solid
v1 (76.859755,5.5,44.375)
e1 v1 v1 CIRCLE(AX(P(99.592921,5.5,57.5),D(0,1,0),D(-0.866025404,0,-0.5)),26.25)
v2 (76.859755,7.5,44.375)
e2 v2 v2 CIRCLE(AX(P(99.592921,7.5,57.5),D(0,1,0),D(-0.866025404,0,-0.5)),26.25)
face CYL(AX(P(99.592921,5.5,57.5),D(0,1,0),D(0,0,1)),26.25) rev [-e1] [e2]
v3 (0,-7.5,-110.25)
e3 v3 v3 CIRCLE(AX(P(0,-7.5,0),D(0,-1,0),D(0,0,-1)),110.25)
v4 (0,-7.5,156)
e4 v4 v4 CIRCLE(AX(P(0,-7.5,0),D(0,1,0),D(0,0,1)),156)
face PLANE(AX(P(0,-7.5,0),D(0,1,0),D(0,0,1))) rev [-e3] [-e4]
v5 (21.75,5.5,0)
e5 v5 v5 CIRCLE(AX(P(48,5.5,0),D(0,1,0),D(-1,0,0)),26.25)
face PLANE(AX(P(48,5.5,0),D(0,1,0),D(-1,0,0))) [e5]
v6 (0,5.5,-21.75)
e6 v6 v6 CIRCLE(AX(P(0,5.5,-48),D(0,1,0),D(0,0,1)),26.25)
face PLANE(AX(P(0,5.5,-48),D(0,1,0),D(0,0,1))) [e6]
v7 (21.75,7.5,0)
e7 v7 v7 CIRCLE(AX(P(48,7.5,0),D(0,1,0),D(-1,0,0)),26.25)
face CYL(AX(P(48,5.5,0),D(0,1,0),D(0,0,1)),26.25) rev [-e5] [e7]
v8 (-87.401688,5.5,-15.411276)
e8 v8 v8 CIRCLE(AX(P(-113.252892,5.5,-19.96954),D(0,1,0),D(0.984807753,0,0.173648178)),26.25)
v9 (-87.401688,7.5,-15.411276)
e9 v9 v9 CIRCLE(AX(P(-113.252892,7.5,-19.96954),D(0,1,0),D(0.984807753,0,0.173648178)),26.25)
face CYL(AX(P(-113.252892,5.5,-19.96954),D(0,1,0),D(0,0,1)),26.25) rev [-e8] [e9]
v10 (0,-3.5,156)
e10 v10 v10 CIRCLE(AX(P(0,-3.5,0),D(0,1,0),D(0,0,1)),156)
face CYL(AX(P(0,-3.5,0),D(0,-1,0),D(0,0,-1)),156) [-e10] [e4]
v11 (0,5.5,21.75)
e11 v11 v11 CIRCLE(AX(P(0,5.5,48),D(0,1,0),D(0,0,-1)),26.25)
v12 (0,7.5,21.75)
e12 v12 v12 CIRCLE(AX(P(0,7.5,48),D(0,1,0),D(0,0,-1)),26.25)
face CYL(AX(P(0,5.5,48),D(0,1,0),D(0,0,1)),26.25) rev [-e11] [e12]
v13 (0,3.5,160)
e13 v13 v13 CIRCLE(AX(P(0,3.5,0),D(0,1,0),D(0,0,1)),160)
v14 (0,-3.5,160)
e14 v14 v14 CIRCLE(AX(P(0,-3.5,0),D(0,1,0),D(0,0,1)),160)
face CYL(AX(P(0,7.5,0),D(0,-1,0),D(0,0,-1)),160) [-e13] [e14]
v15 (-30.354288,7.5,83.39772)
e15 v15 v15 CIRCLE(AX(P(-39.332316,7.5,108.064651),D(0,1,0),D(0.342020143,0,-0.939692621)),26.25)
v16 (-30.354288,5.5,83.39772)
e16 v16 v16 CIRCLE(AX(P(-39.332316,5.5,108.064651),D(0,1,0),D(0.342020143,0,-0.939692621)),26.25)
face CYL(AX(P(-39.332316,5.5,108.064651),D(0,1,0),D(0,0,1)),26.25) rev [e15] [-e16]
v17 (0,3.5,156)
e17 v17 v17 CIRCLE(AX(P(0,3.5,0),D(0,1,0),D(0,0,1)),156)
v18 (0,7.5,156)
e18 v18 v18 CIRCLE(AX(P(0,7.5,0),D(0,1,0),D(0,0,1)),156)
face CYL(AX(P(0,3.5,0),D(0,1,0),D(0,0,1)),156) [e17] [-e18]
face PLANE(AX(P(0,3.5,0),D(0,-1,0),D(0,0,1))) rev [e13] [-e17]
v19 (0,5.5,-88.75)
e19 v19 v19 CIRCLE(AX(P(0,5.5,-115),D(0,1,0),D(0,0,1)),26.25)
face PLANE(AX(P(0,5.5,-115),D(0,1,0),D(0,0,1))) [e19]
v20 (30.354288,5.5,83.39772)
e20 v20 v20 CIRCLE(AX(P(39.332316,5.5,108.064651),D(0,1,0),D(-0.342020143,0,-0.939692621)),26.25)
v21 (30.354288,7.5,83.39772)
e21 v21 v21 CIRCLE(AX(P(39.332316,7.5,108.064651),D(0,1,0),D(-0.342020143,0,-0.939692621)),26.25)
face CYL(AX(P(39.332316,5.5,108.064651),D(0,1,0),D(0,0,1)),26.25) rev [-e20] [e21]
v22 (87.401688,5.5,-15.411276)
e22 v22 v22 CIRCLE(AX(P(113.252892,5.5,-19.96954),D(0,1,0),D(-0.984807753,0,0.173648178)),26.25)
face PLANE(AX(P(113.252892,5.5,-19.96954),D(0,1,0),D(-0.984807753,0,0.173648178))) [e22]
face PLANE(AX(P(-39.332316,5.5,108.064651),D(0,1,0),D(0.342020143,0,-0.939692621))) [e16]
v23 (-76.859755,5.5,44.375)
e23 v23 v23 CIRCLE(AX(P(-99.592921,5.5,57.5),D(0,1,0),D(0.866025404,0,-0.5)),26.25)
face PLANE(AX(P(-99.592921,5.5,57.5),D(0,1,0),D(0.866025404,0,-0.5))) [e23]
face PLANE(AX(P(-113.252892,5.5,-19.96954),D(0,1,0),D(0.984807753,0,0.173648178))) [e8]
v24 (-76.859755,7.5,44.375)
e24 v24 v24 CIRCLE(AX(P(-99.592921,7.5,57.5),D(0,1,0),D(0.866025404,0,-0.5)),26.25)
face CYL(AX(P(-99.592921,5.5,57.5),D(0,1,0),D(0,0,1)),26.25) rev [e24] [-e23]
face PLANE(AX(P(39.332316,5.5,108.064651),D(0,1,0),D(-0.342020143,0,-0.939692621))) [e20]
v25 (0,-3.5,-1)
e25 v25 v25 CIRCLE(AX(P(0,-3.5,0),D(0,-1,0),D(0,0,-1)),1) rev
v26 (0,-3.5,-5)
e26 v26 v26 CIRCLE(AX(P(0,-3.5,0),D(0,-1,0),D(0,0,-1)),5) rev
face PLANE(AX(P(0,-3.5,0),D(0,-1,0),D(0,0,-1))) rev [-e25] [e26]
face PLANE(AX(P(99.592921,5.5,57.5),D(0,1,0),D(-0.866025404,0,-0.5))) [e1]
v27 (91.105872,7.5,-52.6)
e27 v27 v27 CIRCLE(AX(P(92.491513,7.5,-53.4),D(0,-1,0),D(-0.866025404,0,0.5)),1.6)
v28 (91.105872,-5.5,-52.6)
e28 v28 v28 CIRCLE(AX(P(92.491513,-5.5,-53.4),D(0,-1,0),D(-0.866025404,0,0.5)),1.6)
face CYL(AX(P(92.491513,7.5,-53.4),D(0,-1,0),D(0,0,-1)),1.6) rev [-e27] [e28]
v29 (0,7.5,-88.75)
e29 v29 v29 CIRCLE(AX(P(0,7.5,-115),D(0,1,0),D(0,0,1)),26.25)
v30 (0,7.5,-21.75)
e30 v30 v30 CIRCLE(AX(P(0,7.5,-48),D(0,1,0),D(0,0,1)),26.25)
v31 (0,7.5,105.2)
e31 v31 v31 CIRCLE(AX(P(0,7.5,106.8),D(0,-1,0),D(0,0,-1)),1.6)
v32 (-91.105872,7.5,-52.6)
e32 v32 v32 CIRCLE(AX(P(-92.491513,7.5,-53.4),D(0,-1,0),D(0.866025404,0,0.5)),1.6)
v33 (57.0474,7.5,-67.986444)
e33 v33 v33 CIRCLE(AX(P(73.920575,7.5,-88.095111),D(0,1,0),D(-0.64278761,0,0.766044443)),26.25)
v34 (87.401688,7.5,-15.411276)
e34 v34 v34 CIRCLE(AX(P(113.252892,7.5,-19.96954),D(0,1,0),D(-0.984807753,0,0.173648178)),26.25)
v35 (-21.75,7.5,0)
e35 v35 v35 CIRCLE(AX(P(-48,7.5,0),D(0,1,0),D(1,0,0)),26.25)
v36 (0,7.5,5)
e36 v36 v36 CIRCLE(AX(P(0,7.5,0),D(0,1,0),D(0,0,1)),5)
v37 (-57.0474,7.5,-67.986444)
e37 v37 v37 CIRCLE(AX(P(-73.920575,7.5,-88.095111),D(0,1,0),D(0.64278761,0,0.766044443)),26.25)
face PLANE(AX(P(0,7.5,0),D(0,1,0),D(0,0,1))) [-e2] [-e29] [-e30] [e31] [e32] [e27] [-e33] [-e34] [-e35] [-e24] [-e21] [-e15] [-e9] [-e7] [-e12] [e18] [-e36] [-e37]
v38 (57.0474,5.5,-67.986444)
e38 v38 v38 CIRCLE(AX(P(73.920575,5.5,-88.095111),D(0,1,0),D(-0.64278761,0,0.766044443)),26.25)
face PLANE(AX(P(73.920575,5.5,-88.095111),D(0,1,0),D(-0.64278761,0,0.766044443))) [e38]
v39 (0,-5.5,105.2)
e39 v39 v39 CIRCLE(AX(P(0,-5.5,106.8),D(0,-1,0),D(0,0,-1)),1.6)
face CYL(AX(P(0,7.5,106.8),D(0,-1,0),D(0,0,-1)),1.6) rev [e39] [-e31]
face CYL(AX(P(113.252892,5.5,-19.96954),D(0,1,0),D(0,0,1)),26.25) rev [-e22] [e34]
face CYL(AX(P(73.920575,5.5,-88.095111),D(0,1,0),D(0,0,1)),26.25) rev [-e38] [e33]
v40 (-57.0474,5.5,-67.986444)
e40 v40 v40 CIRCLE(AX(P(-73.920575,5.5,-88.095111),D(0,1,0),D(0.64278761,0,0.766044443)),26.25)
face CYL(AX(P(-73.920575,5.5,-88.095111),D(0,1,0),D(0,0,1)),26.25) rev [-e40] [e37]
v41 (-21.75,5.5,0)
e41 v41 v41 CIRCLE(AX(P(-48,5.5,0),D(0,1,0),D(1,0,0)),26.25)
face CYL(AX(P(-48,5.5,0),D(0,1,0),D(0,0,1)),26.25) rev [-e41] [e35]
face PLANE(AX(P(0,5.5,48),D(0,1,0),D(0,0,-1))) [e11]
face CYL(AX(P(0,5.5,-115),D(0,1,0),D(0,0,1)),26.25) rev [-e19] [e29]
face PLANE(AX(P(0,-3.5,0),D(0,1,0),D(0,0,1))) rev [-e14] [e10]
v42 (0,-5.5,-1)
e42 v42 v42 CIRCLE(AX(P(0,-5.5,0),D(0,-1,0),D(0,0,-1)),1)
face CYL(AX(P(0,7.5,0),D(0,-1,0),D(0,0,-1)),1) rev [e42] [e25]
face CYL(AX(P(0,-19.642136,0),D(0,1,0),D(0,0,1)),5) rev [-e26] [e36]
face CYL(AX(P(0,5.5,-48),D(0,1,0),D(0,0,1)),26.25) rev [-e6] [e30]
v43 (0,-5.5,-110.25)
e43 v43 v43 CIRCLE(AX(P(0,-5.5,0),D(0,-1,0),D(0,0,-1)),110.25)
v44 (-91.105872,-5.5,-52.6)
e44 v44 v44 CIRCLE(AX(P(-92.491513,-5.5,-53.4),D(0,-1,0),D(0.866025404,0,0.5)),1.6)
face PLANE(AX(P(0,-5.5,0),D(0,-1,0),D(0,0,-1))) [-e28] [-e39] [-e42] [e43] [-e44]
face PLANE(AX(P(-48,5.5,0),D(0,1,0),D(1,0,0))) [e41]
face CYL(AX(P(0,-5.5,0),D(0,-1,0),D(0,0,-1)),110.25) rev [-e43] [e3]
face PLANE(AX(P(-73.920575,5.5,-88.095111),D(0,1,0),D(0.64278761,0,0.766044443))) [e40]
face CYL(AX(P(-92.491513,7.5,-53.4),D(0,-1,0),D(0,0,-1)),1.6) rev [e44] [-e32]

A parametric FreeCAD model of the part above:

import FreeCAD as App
import Part
import Sketcher

doc = App.newDocument("Part")
params = doc.addObject("Spreadsheet::Sheet", "Params")
for row, (alias, value) in enumerate([
    ("sketch1_diameter", "320 mm"),
    ("pad1_length", "15 mm"),
    ("sketch2_diameter", "220.5 mm"),
    ("pocket1_length", "2 mm"),
    ("sketch3_diameter", "3.2 mm"),
    ("sketch4_diameter", "2 mm"),
    ("sketch5_diameter", "10 mm"),
    ("pocket4_length", "11 mm"),
    ("sketch6_diameter", "320 mm"),
    ("sketch6_diameter2", "312 mm"),
    ("pocket5_length", "4 mm"),
    ("sketch7_diameter", "52.5 mm"),
    ("pocket6_length", "2 mm"),
    ("sketch8_diameter", "52.5 mm"),
    ("pocket7_length", "2 mm"),
], start=1):
    params.set(f"A{row}", alias)
    params.set(f"B{row}", "=" + value)
    params.setAlias(f"B{row}", alias)

body = doc.addObject("PartDesign::Body", "Body")

sketch1 = body.newObject("Sketcher::SketchObject", "Sketch")
sketch1.AttachmentSupport = (doc.getObject("XZ_Plane"), [""])
sketch1.MapMode = "FlatFace"
sketch1.addGeometry(Part.Circle(App.Vector(0, 0, 0), App.Vector(0, 0, 1), 160), False)
sketch1.addConstraint([
    Sketcher.Constraint("Coincident", 0, 3, -1, 1),
    Sketcher.Constraint("Diameter", 0, 320.0),
])
sketch1.setExpression("Constraints[1]", "Params.sketch1_diameter")
pad1 = body.newObject("PartDesign::Pad", "Pad")
pad1.Profile = sketch1
pad1.setExpression("Length", "Params.pad1_length")
pad1.Midplane = True

sketch2 = body.newObject("Sketcher::SketchObject", "Sketch001")
sketch2.AttachmentSupport = (doc.getObject("XZ_Plane"), [""])
sketch2.MapMode = "FlatFace"
sketch2.AttachmentOffset = App.Placement(App.Vector(0, 0, 7.5), App.Rotation())
sketch2.addGeometry(Part.Circle(App.Vector(0, 0, 0), App.Vector(0, 0, 1), 110.25), False)
sketch2.addConstraint([
    Sketcher.Constraint("Coincident", 0, 3, -1, 1),
    Sketcher.Constraint("Diameter", 0, 220.5),
])
sketch2.setExpression("Constraints[1]", "Params.sketch2_diameter")
pocket1 = body.newObject("PartDesign::Pocket", "Pocket")
pocket1.Profile = sketch2
pocket1.setExpression("Length", "Params.pocket1_length")

sketch3 = body.newObject("Sketcher::SketchObject", "Sketch002")
sketch3.AttachmentSupport = (doc.getObject("XZ_Plane"), [""])
sketch3.MapMode = "FlatFace"
sketch3.AttachmentOffset = App.Placement(App.Vector(0, 0, 5.5), App.Rotation())
sketch3.addGeometry(Part.Circle(App.Vector(0, 106.8, 0), App.Vector(0, 0, 1), 1.6), False)
sketch3.addConstraint([
    Sketcher.Constraint("PointOnObject", 0, 3, -2),
    Sketcher.Constraint("Diameter", 0, 3.2),
    Sketcher.Constraint("DistanceY", -1, 1, 0, 3, 106.8),
])
sketch3.setExpression("Constraints[1]", "Params.sketch3_diameter")
pocket2 = body.newObject("PartDesign::Pocket", "Pocket001")
pocket2.Profile = sketch3
pocket2.Type = "ThroughAll"
doc.recompute()

polarpattern = body.newObject("PartDesign::PolarPattern", "PolarPattern")
polarpattern.Originals = [pocket2]
polarpattern.Axis = (doc.getObject("Y_Axis"), [""])
polarpattern.Angle = 360
polarpattern.Occurrences = 3
body.Tip = polarpattern

sketch4 = body.newObject("Sketcher::SketchObject", "Sketch003")
sketch4.AttachmentSupport = (doc.getObject("XZ_Plane"), [""])
sketch4.MapMode = "FlatFace"
sketch4.AttachmentOffset = App.Placement(App.Vector(0, 0, 5.5), App.Rotation())
sketch4.addGeometry(Part.Circle(App.Vector(0, 0, 0), App.Vector(0, 0, 1), 1), False)
sketch4.addConstraint([
    Sketcher.Constraint("Coincident", 0, 3, -1, 1),
    Sketcher.Constraint("Diameter", 0, 2.0),
])
sketch4.setExpression("Constraints[1]", "Params.sketch4_diameter")
pocket3 = body.newObject("PartDesign::Pocket", "Pocket002")
pocket3.Profile = sketch4
pocket3.Type = "ThroughAll"

sketch5 = body.newObject("Sketcher::SketchObject", "Sketch004")
sketch5.AttachmentSupport = (doc.getObject("XZ_Plane"), [""])
sketch5.MapMode = "FlatFace"
sketch5.AttachmentOffset = App.Placement(App.Vector(0, 0, -7.5), App.Rotation())
sketch5.addGeometry(Part.Circle(App.Vector(0, 0, 0), App.Vector(0, 0, 1), 5), False)
sketch5.addConstraint([
    Sketcher.Constraint("Coincident", 0, 3, -1, 1),
    Sketcher.Constraint("Diameter", 0, 10.0),
])
sketch5.setExpression("Constraints[1]", "Params.sketch5_diameter")
pocket4 = body.newObject("PartDesign::Pocket", "Pocket003")
pocket4.Profile = sketch5
pocket4.setExpression("Length", "Params.pocket4_length")
pocket4.Reversed = True

sketch6 = body.newObject("Sketcher::SketchObject", "Sketch005")
sketch6.AttachmentSupport = (doc.getObject("XZ_Plane"), [""])
sketch6.MapMode = "FlatFace"
sketch6.AttachmentOffset = App.Placement(App.Vector(0, 0, 7.5), App.Rotation())
sketch6.addGeometry([
    Part.Circle(App.Vector(0, 0, 0), App.Vector(0, 0, 1), 160),
    Part.Circle(App.Vector(0, 0, 0), App.Vector(0, 0, 1), 156),
], False)
sketch6.addConstraint([
    Sketcher.Constraint("Coincident", 0, 3, -1, 1),
    Sketcher.Constraint("Coincident", 1, 3, -1, 1),
    Sketcher.Constraint("Diameter", 0, 320.0),
    Sketcher.Constraint("Diameter", 1, 312.0),
])
sketch6.setExpression("Constraints[2]", "Params.sketch6_diameter")
sketch6.setExpression("Constraints[3]", "Params.sketch6_diameter2")
pocket5 = body.newObject("PartDesign::Pocket", "Pocket004")
pocket5.Profile = sketch6
pocket5.setExpression("Length", "Params.pocket5_length")
doc.recompute()

mirrored = body.newObject("PartDesign::Mirrored", "Mirrored")
mirrored.Originals = [pocket5]
mirrored.MirrorPlane = (doc.getObject("XZ_Plane"), [""])
body.Tip = mirrored

sketch7 = body.newObject("Sketcher::SketchObject", "Sketch006")
sketch7.AttachmentSupport = (doc.getObject("XZ_Plane"), [""])
sketch7.MapMode = "FlatFace"
sketch7.AttachmentOffset = App.Placement(App.Vector(0, 0, -7.5), App.Rotation())
sketch7.addGeometry(Part.Circle(App.Vector(0, -115, 0), App.Vector(0, 0, 1), 26.25), False)
sketch7.addConstraint([
    Sketcher.Constraint("PointOnObject", 0, 3, -2),
    Sketcher.Constraint("Diameter", 0, 52.5),
    Sketcher.Constraint("DistanceY", 0, 3, -1, 1, 115.0),
])
sketch7.setExpression("Constraints[1]", "Params.sketch7_diameter")
pocket6 = body.newObject("PartDesign::Pocket", "Pocket005")
pocket6.Profile = sketch7
pocket6.setExpression("Length", "Params.pocket6_length")
pocket6.Reversed = True
doc.recompute()

polarpattern2 = body.newObject("PartDesign::PolarPattern", "PolarPattern001")
polarpattern2.Originals = [pocket6]
polarpattern2.Axis = (doc.getObject("Y_Axis"), [""])
polarpattern2.Angle = 360
polarpattern2.Occurrences = 9
body.Tip = polarpattern2

sketch8 = body.newObject("Sketcher::SketchObject", "Sketch007")
sketch8.AttachmentSupport = (doc.getObject("XZ_Plane"), [""])
sketch8.MapMode = "FlatFace"
sketch8.AttachmentOffset = App.Placement(App.Vector(0, 0, -7.5), App.Rotation())
sketch8.addGeometry(Part.Circle(App.Vector(0, -48, 0), App.Vector(0, 0, 1), 26.25), False)
sketch8.addConstraint([
    Sketcher.Constraint("PointOnObject", 0, 3, -2),
    Sketcher.Constraint("Diameter", 0, 52.5),
    Sketcher.Constraint("DistanceY", 0, 3, -1, 1, 48.0),
])
sketch8.setExpression("Constraints[1]", "Params.sketch8_diameter")
pocket7 = body.newObject("PartDesign::Pocket", "Pocket006")
pocket7.Profile = sketch8
pocket7.setExpression("Length", "Params.pocket7_length")
pocket7.Reversed = True
doc.recompute()

polarpattern3 = body.newObject("PartDesign::PolarPattern", "PolarPattern002")
polarpattern3.Originals = [pocket7]
polarpattern3.Axis = (doc.getObject("Y_Axis"), [""])
polarpattern3.Angle = 360
polarpattern3.Occurrences = 4
body.Tip = polarpattern3

doc.recompute()
